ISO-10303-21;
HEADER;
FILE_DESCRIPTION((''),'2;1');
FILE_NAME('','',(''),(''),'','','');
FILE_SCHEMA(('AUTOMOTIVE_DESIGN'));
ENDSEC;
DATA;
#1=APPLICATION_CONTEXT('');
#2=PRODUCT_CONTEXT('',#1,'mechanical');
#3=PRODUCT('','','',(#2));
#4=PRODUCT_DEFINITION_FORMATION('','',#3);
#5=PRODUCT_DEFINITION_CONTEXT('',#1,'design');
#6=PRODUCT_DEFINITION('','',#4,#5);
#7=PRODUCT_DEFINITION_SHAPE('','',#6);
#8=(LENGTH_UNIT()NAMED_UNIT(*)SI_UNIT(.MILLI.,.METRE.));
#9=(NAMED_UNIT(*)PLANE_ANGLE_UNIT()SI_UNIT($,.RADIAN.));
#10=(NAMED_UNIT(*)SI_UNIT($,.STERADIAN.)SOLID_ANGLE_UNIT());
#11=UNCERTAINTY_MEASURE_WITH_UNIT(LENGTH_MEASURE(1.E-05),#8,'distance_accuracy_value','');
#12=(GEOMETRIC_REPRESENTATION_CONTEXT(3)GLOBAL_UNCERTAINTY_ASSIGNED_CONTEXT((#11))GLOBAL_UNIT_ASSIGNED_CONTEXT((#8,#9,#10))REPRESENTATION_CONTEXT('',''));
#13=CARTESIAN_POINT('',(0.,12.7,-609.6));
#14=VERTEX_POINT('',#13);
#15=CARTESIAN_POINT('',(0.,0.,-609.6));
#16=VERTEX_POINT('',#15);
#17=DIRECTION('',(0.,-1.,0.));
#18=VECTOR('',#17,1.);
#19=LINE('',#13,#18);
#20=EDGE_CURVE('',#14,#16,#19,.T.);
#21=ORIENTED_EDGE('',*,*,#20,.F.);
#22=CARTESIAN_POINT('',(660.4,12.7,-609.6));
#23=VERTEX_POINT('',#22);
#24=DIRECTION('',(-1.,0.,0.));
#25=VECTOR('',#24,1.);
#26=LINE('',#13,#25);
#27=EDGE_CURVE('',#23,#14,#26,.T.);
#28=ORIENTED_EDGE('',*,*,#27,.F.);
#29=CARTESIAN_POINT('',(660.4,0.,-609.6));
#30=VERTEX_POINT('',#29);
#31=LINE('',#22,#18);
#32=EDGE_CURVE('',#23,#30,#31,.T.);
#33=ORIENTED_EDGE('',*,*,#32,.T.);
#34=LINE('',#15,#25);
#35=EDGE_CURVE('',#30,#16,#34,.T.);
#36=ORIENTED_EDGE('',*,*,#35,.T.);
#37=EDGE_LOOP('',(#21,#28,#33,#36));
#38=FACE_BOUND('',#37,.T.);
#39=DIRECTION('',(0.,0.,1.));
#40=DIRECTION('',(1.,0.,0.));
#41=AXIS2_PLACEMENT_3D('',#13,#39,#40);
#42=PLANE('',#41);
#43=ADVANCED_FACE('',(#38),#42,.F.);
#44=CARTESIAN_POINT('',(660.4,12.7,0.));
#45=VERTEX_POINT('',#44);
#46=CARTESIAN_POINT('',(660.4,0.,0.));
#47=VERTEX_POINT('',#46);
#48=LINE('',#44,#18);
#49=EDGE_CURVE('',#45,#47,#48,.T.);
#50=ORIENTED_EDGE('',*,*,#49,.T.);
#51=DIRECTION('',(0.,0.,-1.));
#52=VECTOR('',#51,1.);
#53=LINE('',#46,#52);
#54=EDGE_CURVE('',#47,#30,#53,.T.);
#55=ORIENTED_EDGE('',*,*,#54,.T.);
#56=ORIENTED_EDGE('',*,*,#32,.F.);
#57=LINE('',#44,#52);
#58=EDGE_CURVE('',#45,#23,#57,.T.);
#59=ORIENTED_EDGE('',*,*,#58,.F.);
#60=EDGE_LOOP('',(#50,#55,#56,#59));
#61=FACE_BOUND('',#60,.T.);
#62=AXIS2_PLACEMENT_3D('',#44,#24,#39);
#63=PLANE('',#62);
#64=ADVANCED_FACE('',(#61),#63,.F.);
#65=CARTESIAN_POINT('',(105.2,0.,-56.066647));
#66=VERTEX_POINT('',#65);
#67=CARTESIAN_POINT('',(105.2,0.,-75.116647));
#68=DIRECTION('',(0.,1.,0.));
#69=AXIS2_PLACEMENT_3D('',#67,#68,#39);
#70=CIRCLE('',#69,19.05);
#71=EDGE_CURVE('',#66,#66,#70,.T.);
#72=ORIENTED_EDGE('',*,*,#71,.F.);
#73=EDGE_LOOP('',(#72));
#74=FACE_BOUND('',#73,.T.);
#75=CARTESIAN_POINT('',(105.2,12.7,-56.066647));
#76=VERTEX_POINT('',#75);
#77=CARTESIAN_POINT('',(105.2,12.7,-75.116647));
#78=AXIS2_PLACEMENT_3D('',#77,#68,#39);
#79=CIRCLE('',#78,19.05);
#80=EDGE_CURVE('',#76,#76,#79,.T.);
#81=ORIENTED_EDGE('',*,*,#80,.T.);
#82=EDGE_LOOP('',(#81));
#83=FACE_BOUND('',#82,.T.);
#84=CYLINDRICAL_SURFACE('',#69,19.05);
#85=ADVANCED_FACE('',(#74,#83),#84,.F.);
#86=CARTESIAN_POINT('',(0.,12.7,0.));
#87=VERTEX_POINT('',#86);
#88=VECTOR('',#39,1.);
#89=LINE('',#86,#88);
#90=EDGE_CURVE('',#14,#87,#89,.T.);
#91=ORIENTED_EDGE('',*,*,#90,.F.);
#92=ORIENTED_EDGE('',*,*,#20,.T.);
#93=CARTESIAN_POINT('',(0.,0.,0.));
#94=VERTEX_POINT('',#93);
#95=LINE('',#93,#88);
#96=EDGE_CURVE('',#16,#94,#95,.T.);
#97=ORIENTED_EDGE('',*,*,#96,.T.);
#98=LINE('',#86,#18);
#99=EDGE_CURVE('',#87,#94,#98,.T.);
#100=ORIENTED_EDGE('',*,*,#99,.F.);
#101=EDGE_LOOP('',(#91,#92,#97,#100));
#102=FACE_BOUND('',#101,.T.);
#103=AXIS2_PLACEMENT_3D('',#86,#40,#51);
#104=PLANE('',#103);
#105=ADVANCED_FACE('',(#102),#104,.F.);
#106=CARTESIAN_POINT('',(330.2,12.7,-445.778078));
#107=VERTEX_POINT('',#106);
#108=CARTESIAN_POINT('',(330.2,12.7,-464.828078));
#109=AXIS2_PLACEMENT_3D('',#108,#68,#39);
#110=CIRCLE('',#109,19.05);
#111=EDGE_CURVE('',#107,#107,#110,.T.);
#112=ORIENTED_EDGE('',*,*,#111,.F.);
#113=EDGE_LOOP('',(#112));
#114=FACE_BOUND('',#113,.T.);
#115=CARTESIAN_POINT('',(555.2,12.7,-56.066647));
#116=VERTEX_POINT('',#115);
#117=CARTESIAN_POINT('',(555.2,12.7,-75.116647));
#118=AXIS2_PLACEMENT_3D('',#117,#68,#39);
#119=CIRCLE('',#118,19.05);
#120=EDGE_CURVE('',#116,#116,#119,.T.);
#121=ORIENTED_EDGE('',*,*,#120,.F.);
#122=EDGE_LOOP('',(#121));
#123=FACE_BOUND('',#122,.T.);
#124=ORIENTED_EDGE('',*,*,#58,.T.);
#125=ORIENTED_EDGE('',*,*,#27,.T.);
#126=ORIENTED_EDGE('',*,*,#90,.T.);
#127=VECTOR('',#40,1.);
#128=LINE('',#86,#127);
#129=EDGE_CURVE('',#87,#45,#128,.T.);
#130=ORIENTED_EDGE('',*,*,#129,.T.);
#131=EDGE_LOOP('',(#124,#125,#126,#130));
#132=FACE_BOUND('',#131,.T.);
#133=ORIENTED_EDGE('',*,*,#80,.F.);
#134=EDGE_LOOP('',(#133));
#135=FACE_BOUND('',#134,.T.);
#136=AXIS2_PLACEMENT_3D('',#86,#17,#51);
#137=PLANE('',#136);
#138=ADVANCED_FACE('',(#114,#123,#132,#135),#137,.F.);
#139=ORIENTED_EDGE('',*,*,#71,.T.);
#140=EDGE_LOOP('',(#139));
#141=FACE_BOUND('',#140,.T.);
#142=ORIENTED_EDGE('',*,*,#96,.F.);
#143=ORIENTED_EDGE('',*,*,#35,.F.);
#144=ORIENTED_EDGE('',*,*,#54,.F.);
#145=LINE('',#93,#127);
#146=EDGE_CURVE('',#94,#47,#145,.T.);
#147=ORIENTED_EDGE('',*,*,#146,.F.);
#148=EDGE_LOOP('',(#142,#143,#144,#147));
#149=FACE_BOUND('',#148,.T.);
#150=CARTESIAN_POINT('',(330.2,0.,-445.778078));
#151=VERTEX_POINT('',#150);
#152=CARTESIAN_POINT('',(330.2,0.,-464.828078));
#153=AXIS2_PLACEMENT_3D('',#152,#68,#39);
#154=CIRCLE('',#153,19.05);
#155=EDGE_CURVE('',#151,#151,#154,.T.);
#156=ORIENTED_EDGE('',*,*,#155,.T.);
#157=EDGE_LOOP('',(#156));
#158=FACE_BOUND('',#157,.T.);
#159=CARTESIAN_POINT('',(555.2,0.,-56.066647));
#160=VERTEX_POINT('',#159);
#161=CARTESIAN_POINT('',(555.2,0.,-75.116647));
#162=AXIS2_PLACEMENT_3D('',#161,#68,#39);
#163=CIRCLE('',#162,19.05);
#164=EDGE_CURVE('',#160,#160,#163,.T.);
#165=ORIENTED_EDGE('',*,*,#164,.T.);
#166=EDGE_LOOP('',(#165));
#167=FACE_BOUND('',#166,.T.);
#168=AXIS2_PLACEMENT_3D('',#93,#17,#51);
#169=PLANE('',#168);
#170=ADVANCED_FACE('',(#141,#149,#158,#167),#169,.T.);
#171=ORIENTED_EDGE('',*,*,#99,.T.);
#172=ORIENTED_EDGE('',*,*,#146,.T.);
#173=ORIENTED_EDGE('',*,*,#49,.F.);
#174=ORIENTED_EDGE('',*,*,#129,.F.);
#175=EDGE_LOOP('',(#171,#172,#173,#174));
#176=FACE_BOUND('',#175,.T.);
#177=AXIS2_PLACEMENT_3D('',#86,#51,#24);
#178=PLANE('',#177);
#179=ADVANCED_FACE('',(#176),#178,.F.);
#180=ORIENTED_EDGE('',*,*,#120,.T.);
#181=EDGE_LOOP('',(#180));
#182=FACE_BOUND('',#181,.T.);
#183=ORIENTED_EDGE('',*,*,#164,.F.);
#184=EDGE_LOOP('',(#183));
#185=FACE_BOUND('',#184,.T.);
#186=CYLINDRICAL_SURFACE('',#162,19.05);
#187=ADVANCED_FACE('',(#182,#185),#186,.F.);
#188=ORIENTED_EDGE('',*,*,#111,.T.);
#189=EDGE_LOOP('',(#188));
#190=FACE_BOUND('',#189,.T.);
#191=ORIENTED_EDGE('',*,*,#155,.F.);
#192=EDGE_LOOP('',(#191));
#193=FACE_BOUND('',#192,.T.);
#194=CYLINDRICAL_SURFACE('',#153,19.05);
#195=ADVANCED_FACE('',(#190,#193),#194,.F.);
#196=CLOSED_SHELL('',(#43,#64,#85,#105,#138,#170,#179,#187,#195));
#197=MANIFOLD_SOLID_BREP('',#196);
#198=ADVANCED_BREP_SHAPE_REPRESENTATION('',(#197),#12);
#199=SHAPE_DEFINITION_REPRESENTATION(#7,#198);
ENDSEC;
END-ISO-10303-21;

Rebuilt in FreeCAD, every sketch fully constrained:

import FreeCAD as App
import Part
import Sketcher
Q = App.Units.Quantity

doc = App.newDocument("Part")
body = doc.addObject("PartDesign::Body", "Body")

# Sketch on XZ plane
sketch1 = doc.addObject("Sketcher::SketchObject", "Sketch")
body.addObject(sketch1)
sketch1.AttachmentSupport = (doc.XZ_Plane, [""])
sketch1.MapMode = "FlatFace"
sketch1.addGeometry([
    Part.LineSegment(App.Vector(0, -610, 0), App.Vector(0, 0, 0)),
    Part.LineSegment(App.Vector(0, 0, 0), App.Vector(660, 0, 0)),
    Part.LineSegment(App.Vector(660, 0, 0), App.Vector(660, -610, 0)),
    Part.LineSegment(App.Vector(660, -610, 0), App.Vector(0, -610, 0)),
], False)
sketch1.addConstraint([
    Sketcher.Constraint("Coincident", 0, 2, 1, 1),
    Sketcher.Constraint("Coincident", 1, 2, 2, 1),
    Sketcher.Constraint("Coincident", 2, 2, 3, 1),
    Sketcher.Constraint("Coincident", 3, 2, 0, 1),
    Sketcher.Constraint("Vertical", 0),
    Sketcher.Constraint("Horizontal", 1),
    Sketcher.Constraint("Vertical", 2),
    Sketcher.Constraint("Horizontal", 3),
    Sketcher.Constraint("Coincident", 0, 2, -1, 1),
    Sketcher.Constraint("DistanceX", 1, 1, 1, 2, Q("26 in")),
    Sketcher.Constraint("DistanceY", 0, 1, 0, 2, Q("24 in")),
])
pad1 = doc.addObject("PartDesign::Pad", "Pad")
body.addObject(pad1)
pad1.Profile = sketch1
pad1.Length = Q("0.5 in")
pad1.Reversed = True

# Sketch on XZ plane
sketch2 = doc.addObject("Sketcher::SketchObject", "Sketch001")
body.addObject(sketch2)
sketch2.AttachmentSupport = (doc.XZ_Plane, [""])
sketch2.MapMode = "FlatFace"
sketch2.AttachmentOffset = App.Placement(App.Vector(0, 0, -0.5 * 25.4), App.Rotation())
sketch2.addGeometry([
    Part.Circle(App.Vector(105, -75, 0), App.Vector(0, 0, 1), 19),
    Part.Circle(App.Vector(555, -75, 0), App.Vector(0, 0, 1), 19),
    Part.Circle(App.Vector(330, -465, 0), App.Vector(0, 0, 1), 19),
], False)
sketch2.addConstraint([
    Sketcher.Constraint("Equal", 0, 1),
    Sketcher.Constraint("Equal", 1, 2),
    Sketcher.Constraint("Horizontal", 0, 3, 1, 3),
    Sketcher.Constraint("Diameter", 0, Q("1.5 in")),
    Sketcher.Constraint("DistanceX", -1, 1, 2, 3, Q("13 in")),
    Sketcher.Constraint("DistanceX", -1, 1, 0, 3, Q("105.2 mm")),
    Sketcher.Constraint("DistanceX", -1, 1, 1, 3, Q("555.2 mm")),
    Sketcher.Constraint("DistanceY", 2, 3, -1, 1, Q("464.828078 mm")),
    Sketcher.Constraint("DistanceY", 2, 3, 0, 3, Q("389.711432 mm")),
])
pocket1 = doc.addObject("PartDesign::Pocket", "Pocket")
body.addObject(pocket1)
pocket1.Profile = sketch2
pocket1.Type = "ThroughAll"
pocket1.Reversed = True

doc.recompute()
